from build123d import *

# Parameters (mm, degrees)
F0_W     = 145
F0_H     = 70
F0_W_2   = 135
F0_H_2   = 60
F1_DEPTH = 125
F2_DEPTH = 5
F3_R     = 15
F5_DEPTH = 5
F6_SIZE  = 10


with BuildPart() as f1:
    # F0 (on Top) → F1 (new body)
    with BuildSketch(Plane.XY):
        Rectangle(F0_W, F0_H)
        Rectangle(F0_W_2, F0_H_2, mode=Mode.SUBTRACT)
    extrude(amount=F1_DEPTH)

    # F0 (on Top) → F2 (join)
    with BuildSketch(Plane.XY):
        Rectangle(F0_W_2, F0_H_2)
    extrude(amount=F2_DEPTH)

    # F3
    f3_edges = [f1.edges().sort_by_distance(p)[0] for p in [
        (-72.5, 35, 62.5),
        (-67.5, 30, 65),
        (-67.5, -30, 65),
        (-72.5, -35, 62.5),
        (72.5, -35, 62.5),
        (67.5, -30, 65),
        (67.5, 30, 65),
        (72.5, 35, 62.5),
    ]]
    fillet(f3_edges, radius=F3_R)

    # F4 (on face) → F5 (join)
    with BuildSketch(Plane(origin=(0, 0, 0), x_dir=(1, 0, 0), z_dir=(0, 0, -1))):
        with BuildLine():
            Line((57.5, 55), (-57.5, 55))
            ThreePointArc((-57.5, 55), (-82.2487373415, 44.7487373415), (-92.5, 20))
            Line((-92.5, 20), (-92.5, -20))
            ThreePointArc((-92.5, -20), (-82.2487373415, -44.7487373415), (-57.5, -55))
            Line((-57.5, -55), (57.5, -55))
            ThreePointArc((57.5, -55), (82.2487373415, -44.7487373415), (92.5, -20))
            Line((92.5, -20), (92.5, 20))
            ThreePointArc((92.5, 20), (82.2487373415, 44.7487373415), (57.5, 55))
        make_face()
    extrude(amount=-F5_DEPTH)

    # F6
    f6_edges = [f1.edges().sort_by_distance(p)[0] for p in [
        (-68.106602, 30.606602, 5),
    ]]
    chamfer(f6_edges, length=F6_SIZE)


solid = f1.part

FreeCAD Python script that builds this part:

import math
import FreeCAD as App
import Part
import Sketcher
from FreeCAD import Vector
Q = App.Units.Quantity


def edges_at(feature, points):
    """Names of the edges that pass closest to the given points."""
    edges = feature.Shape.Edges
    near = lambda p: min(range(len(edges)), key=lambda i: edges[i].distToShape(Part.Vertex(*p))[0])
    return sorted({f"Edge{near(p) + 1}" for p in points})


def add_polygon(sketch, points):
    """Adds a closed chain of lines whose ends are joined by coincident constraints."""
    first, n = sketch.GeometryCount, len(points)
    for a, b in zip(points, points[1:] + points[:1]):
        sketch.addGeometry(Part.LineSegment(App.Vector(*a, 0), App.Vector(*b, 0)), False)
    for i in range(n):
        sketch.addConstraint(Sketcher.Constraint("Coincident", first + i, 2, first + (i + 1) % n, 1))

doc = App.newDocument("Part")
body = doc.addObject("PartDesign::Body", "Body")

# Sketch on XY plane
sketch1 = doc.addObject("Sketcher::SketchObject", "Sketch")
body.addObject(sketch1)
sketch1.AttachmentSupport = (doc.XY_Plane, [""])
sketch1.MapMode = "FlatFace"
add_polygon(sketch1, [(-72.5, 35), (-72.5, -35), (72.5, -35), (72.5, 35)])  # lines 0-3
add_polygon(sketch1, [(67.5, -30), (-67.5, -30), (-67.5, 30), (67.5, 30)])  # lines 4-7
sketch1.addConstraint(Sketcher.Constraint("Vertical", 0))
sketch1.addConstraint(Sketcher.Constraint("Horizontal", 1))
sketch1.addConstraint(Sketcher.Constraint("Vertical", 2))
sketch1.addConstraint(Sketcher.Constraint("Horizontal", 3))
sketch1.addConstraint(Sketcher.Constraint("Horizontal", 4))
sketch1.addConstraint(Sketcher.Constraint("Vertical", 5))
sketch1.addConstraint(Sketcher.Constraint("Horizontal", 6))
sketch1.addConstraint(Sketcher.Constraint("Vertical", 7))
sketch1.addConstraint(Sketcher.Constraint("Symmetric", 0, 2, 2, 2, -1, 1))
sketch1.addConstraint(Sketcher.Constraint("Symmetric", 4, 2, 6, 2, -1, 1))
sketch1.addConstraint(Sketcher.Constraint("DistanceX", 1, 1, 1, 2, Q("145 mm")))
sketch1.addConstraint(Sketcher.Constraint("DistanceX", 4, 2, 4, 1, Q("135 mm")))
sketch1.addConstraint(Sketcher.Constraint("DistanceY", 0, 2, 0, 1, Q("70 mm")))
sketch1.addConstraint(Sketcher.Constraint("DistanceY", 5, 1, 5, 2, Q("60 mm")))
pad1 = doc.addObject("PartDesign::Pad", "Pad")
body.addObject(pad1)
pad1.Profile = sketch1
pad1.Length = 125

# Sketch on XY plane
sketch2 = doc.addObject("Sketcher::SketchObject", "Sketch001")
body.addObject(sketch2)
sketch2.AttachmentSupport = (doc.XY_Plane, [""])
sketch2.MapMode = "FlatFace"
add_polygon(sketch2, [(-67.5, 30), (-67.5, -30), (67.5, -30), (67.5, 30)])  # lines 0-3
sketch2.addConstraint(Sketcher.Constraint("Vertical", 0))
sketch2.addConstraint(Sketcher.Constraint("Horizontal", 1))
sketch2.addConstraint(Sketcher.Constraint("Vertical", 2))
sketch2.addConstraint(Sketcher.Constraint("Horizontal", 3))
sketch2.addConstraint(Sketcher.Constraint("Symmetric", 0, 2, 2, 2, -1, 1))
sketch2.addConstraint(Sketcher.Constraint("DistanceX", 1, 1, 1, 2, Q("135 mm")))
sketch2.addConstraint(Sketcher.Constraint("DistanceY", 0, 2, 0, 1, Q("60 mm")))
pad2 = doc.addObject("PartDesign::Pad", "Pad001")
body.addObject(pad2)
pad2.Profile = sketch2
pad2.Length = 5
doc.recompute()

fillet = doc.addObject("PartDesign::Fillet", "Fillet")
body.addObject(fillet)
fillet.Base = (pad2, edges_at(pad2, [
    (-72.5, 35, 62.5),
    (-67.5, 30, 65),
    (-67.5, -30, 65),
    (-72.5, -35, 62.5),
    (72.5, -35, 62.5),
    (67.5, -30, 65),
    (67.5, 30, 65),
    (72.5, 35, 62.5),
]))
fillet.Radius = 15

# Sketch on XY plane
sketch3 = doc.addObject("Sketcher::SketchObject", "Sketch002")
body.addObject(sketch3)
sketch3.AttachmentSupport = (doc.XY_Plane, [""])
sketch3.MapMode = "FlatFace"
sketch3.addGeometry(Part.LineSegment(Vector(57.5, -55, 0), Vector(-57.5, -55, 0)), False)
sketch3.addGeometry(Part.ArcOfCircle(Part.Circle(Vector(-57.5, -20, 0), Vector(0, 0, 1), 35), math.radians(180), math.radians(270)), False)
sketch3.addGeometry(Part.LineSegment(Vector(-92.5, -20, 0), Vector(-92.5, 20, 0)), False)
sketch3.addGeometry(Part.ArcOfCircle(Part.Circle(Vector(-57.5, 20, 0), Vector(0, 0, 1), 35), math.radians(90), math.radians(180)), False)
sketch3.addGeometry(Part.LineSegment(Vector(-57.5, 55, 0), Vector(57.5, 55, 0)), False)
sketch3.addGeometry(Part.ArcOfCircle(Part.Circle(Vector(57.5, 20, 0), Vector(0, 0, 1), 35), math.radians(0), math.radians(90)), False)
sketch3.addGeometry(Part.LineSegment(Vector(92.5, 20, 0), Vector(92.5, -20, 0)), False)
sketch3.addGeometry(Part.ArcOfCircle(Part.Circle(Vector(57.5, -20, 0), Vector(0, 0, 1), 35), math.radians(-90), math.radians(0)), False)
sketch3.addConstraint(Sketcher.Constraint("Tangent", 0, 2, 1, 2))
sketch3.addConstraint(Sketcher.Constraint("Tangent", 1, 1, 2, 1))
sketch3.addConstraint(Sketcher.Constraint("Tangent", 2, 2, 3, 2))
sketch3.addConstraint(Sketcher.Constraint("Tangent", 3, 1, 4, 1))
sketch3.addConstraint(Sketcher.Constraint("Tangent", 4, 2, 5, 2))
sketch3.addConstraint(Sketcher.Constraint("Tangent", 5, 1, 6, 1))
sketch3.addConstraint(Sketcher.Constraint("Tangent", 6, 2, 7, 2))
sketch3.addConstraint(Sketcher.Constraint("Tangent", 7, 1, 0, 1))
sketch3.addConstraint(Sketcher.Constraint("Horizontal", 0))
sketch3.addConstraint(Sketcher.Constraint("Vertical", 2))
sketch3.addConstraint(Sketcher.Constraint("Horizontal", 4))
sketch3.addConstraint(Sketcher.Constraint("Vertical", 6))
sketch3.addConstraint(Sketcher.Constraint("Equal", 1, 3))
sketch3.addConstraint(Sketcher.Constraint("Equal", 3, 5))
sketch3.addConstraint(Sketcher.Constraint("Equal", 5, 7))
sketch3.addConstraint(Sketcher.Constraint("Symmetric", 1, 3, 5, 3, -1, 1))
sketch3.addConstraint(Sketcher.Constraint("Radius", 1, Q("35 mm")))
sketch3.addConstraint(Sketcher.Constraint("DistanceX", 0, 2, 0, 1, Q("115 mm")))
sketch3.addConstraint(Sketcher.Constraint("DistanceY", 2, 1, 2, 2, Q("40 mm")))
pad3 = doc.addObject("PartDesign::Pad", "Pad002")
body.addObject(pad3)
pad3.Profile = sketch3
pad3.Length = 5
doc.recompute()

chamfer = doc.addObject("PartDesign::Chamfer", "Chamfer")
body.addObject(chamfer)
chamfer.Base = (pad3, edges_at(pad3, [(-68.107, 30.607, 5)]))
chamfer.Size = 10

doc.recompute()
